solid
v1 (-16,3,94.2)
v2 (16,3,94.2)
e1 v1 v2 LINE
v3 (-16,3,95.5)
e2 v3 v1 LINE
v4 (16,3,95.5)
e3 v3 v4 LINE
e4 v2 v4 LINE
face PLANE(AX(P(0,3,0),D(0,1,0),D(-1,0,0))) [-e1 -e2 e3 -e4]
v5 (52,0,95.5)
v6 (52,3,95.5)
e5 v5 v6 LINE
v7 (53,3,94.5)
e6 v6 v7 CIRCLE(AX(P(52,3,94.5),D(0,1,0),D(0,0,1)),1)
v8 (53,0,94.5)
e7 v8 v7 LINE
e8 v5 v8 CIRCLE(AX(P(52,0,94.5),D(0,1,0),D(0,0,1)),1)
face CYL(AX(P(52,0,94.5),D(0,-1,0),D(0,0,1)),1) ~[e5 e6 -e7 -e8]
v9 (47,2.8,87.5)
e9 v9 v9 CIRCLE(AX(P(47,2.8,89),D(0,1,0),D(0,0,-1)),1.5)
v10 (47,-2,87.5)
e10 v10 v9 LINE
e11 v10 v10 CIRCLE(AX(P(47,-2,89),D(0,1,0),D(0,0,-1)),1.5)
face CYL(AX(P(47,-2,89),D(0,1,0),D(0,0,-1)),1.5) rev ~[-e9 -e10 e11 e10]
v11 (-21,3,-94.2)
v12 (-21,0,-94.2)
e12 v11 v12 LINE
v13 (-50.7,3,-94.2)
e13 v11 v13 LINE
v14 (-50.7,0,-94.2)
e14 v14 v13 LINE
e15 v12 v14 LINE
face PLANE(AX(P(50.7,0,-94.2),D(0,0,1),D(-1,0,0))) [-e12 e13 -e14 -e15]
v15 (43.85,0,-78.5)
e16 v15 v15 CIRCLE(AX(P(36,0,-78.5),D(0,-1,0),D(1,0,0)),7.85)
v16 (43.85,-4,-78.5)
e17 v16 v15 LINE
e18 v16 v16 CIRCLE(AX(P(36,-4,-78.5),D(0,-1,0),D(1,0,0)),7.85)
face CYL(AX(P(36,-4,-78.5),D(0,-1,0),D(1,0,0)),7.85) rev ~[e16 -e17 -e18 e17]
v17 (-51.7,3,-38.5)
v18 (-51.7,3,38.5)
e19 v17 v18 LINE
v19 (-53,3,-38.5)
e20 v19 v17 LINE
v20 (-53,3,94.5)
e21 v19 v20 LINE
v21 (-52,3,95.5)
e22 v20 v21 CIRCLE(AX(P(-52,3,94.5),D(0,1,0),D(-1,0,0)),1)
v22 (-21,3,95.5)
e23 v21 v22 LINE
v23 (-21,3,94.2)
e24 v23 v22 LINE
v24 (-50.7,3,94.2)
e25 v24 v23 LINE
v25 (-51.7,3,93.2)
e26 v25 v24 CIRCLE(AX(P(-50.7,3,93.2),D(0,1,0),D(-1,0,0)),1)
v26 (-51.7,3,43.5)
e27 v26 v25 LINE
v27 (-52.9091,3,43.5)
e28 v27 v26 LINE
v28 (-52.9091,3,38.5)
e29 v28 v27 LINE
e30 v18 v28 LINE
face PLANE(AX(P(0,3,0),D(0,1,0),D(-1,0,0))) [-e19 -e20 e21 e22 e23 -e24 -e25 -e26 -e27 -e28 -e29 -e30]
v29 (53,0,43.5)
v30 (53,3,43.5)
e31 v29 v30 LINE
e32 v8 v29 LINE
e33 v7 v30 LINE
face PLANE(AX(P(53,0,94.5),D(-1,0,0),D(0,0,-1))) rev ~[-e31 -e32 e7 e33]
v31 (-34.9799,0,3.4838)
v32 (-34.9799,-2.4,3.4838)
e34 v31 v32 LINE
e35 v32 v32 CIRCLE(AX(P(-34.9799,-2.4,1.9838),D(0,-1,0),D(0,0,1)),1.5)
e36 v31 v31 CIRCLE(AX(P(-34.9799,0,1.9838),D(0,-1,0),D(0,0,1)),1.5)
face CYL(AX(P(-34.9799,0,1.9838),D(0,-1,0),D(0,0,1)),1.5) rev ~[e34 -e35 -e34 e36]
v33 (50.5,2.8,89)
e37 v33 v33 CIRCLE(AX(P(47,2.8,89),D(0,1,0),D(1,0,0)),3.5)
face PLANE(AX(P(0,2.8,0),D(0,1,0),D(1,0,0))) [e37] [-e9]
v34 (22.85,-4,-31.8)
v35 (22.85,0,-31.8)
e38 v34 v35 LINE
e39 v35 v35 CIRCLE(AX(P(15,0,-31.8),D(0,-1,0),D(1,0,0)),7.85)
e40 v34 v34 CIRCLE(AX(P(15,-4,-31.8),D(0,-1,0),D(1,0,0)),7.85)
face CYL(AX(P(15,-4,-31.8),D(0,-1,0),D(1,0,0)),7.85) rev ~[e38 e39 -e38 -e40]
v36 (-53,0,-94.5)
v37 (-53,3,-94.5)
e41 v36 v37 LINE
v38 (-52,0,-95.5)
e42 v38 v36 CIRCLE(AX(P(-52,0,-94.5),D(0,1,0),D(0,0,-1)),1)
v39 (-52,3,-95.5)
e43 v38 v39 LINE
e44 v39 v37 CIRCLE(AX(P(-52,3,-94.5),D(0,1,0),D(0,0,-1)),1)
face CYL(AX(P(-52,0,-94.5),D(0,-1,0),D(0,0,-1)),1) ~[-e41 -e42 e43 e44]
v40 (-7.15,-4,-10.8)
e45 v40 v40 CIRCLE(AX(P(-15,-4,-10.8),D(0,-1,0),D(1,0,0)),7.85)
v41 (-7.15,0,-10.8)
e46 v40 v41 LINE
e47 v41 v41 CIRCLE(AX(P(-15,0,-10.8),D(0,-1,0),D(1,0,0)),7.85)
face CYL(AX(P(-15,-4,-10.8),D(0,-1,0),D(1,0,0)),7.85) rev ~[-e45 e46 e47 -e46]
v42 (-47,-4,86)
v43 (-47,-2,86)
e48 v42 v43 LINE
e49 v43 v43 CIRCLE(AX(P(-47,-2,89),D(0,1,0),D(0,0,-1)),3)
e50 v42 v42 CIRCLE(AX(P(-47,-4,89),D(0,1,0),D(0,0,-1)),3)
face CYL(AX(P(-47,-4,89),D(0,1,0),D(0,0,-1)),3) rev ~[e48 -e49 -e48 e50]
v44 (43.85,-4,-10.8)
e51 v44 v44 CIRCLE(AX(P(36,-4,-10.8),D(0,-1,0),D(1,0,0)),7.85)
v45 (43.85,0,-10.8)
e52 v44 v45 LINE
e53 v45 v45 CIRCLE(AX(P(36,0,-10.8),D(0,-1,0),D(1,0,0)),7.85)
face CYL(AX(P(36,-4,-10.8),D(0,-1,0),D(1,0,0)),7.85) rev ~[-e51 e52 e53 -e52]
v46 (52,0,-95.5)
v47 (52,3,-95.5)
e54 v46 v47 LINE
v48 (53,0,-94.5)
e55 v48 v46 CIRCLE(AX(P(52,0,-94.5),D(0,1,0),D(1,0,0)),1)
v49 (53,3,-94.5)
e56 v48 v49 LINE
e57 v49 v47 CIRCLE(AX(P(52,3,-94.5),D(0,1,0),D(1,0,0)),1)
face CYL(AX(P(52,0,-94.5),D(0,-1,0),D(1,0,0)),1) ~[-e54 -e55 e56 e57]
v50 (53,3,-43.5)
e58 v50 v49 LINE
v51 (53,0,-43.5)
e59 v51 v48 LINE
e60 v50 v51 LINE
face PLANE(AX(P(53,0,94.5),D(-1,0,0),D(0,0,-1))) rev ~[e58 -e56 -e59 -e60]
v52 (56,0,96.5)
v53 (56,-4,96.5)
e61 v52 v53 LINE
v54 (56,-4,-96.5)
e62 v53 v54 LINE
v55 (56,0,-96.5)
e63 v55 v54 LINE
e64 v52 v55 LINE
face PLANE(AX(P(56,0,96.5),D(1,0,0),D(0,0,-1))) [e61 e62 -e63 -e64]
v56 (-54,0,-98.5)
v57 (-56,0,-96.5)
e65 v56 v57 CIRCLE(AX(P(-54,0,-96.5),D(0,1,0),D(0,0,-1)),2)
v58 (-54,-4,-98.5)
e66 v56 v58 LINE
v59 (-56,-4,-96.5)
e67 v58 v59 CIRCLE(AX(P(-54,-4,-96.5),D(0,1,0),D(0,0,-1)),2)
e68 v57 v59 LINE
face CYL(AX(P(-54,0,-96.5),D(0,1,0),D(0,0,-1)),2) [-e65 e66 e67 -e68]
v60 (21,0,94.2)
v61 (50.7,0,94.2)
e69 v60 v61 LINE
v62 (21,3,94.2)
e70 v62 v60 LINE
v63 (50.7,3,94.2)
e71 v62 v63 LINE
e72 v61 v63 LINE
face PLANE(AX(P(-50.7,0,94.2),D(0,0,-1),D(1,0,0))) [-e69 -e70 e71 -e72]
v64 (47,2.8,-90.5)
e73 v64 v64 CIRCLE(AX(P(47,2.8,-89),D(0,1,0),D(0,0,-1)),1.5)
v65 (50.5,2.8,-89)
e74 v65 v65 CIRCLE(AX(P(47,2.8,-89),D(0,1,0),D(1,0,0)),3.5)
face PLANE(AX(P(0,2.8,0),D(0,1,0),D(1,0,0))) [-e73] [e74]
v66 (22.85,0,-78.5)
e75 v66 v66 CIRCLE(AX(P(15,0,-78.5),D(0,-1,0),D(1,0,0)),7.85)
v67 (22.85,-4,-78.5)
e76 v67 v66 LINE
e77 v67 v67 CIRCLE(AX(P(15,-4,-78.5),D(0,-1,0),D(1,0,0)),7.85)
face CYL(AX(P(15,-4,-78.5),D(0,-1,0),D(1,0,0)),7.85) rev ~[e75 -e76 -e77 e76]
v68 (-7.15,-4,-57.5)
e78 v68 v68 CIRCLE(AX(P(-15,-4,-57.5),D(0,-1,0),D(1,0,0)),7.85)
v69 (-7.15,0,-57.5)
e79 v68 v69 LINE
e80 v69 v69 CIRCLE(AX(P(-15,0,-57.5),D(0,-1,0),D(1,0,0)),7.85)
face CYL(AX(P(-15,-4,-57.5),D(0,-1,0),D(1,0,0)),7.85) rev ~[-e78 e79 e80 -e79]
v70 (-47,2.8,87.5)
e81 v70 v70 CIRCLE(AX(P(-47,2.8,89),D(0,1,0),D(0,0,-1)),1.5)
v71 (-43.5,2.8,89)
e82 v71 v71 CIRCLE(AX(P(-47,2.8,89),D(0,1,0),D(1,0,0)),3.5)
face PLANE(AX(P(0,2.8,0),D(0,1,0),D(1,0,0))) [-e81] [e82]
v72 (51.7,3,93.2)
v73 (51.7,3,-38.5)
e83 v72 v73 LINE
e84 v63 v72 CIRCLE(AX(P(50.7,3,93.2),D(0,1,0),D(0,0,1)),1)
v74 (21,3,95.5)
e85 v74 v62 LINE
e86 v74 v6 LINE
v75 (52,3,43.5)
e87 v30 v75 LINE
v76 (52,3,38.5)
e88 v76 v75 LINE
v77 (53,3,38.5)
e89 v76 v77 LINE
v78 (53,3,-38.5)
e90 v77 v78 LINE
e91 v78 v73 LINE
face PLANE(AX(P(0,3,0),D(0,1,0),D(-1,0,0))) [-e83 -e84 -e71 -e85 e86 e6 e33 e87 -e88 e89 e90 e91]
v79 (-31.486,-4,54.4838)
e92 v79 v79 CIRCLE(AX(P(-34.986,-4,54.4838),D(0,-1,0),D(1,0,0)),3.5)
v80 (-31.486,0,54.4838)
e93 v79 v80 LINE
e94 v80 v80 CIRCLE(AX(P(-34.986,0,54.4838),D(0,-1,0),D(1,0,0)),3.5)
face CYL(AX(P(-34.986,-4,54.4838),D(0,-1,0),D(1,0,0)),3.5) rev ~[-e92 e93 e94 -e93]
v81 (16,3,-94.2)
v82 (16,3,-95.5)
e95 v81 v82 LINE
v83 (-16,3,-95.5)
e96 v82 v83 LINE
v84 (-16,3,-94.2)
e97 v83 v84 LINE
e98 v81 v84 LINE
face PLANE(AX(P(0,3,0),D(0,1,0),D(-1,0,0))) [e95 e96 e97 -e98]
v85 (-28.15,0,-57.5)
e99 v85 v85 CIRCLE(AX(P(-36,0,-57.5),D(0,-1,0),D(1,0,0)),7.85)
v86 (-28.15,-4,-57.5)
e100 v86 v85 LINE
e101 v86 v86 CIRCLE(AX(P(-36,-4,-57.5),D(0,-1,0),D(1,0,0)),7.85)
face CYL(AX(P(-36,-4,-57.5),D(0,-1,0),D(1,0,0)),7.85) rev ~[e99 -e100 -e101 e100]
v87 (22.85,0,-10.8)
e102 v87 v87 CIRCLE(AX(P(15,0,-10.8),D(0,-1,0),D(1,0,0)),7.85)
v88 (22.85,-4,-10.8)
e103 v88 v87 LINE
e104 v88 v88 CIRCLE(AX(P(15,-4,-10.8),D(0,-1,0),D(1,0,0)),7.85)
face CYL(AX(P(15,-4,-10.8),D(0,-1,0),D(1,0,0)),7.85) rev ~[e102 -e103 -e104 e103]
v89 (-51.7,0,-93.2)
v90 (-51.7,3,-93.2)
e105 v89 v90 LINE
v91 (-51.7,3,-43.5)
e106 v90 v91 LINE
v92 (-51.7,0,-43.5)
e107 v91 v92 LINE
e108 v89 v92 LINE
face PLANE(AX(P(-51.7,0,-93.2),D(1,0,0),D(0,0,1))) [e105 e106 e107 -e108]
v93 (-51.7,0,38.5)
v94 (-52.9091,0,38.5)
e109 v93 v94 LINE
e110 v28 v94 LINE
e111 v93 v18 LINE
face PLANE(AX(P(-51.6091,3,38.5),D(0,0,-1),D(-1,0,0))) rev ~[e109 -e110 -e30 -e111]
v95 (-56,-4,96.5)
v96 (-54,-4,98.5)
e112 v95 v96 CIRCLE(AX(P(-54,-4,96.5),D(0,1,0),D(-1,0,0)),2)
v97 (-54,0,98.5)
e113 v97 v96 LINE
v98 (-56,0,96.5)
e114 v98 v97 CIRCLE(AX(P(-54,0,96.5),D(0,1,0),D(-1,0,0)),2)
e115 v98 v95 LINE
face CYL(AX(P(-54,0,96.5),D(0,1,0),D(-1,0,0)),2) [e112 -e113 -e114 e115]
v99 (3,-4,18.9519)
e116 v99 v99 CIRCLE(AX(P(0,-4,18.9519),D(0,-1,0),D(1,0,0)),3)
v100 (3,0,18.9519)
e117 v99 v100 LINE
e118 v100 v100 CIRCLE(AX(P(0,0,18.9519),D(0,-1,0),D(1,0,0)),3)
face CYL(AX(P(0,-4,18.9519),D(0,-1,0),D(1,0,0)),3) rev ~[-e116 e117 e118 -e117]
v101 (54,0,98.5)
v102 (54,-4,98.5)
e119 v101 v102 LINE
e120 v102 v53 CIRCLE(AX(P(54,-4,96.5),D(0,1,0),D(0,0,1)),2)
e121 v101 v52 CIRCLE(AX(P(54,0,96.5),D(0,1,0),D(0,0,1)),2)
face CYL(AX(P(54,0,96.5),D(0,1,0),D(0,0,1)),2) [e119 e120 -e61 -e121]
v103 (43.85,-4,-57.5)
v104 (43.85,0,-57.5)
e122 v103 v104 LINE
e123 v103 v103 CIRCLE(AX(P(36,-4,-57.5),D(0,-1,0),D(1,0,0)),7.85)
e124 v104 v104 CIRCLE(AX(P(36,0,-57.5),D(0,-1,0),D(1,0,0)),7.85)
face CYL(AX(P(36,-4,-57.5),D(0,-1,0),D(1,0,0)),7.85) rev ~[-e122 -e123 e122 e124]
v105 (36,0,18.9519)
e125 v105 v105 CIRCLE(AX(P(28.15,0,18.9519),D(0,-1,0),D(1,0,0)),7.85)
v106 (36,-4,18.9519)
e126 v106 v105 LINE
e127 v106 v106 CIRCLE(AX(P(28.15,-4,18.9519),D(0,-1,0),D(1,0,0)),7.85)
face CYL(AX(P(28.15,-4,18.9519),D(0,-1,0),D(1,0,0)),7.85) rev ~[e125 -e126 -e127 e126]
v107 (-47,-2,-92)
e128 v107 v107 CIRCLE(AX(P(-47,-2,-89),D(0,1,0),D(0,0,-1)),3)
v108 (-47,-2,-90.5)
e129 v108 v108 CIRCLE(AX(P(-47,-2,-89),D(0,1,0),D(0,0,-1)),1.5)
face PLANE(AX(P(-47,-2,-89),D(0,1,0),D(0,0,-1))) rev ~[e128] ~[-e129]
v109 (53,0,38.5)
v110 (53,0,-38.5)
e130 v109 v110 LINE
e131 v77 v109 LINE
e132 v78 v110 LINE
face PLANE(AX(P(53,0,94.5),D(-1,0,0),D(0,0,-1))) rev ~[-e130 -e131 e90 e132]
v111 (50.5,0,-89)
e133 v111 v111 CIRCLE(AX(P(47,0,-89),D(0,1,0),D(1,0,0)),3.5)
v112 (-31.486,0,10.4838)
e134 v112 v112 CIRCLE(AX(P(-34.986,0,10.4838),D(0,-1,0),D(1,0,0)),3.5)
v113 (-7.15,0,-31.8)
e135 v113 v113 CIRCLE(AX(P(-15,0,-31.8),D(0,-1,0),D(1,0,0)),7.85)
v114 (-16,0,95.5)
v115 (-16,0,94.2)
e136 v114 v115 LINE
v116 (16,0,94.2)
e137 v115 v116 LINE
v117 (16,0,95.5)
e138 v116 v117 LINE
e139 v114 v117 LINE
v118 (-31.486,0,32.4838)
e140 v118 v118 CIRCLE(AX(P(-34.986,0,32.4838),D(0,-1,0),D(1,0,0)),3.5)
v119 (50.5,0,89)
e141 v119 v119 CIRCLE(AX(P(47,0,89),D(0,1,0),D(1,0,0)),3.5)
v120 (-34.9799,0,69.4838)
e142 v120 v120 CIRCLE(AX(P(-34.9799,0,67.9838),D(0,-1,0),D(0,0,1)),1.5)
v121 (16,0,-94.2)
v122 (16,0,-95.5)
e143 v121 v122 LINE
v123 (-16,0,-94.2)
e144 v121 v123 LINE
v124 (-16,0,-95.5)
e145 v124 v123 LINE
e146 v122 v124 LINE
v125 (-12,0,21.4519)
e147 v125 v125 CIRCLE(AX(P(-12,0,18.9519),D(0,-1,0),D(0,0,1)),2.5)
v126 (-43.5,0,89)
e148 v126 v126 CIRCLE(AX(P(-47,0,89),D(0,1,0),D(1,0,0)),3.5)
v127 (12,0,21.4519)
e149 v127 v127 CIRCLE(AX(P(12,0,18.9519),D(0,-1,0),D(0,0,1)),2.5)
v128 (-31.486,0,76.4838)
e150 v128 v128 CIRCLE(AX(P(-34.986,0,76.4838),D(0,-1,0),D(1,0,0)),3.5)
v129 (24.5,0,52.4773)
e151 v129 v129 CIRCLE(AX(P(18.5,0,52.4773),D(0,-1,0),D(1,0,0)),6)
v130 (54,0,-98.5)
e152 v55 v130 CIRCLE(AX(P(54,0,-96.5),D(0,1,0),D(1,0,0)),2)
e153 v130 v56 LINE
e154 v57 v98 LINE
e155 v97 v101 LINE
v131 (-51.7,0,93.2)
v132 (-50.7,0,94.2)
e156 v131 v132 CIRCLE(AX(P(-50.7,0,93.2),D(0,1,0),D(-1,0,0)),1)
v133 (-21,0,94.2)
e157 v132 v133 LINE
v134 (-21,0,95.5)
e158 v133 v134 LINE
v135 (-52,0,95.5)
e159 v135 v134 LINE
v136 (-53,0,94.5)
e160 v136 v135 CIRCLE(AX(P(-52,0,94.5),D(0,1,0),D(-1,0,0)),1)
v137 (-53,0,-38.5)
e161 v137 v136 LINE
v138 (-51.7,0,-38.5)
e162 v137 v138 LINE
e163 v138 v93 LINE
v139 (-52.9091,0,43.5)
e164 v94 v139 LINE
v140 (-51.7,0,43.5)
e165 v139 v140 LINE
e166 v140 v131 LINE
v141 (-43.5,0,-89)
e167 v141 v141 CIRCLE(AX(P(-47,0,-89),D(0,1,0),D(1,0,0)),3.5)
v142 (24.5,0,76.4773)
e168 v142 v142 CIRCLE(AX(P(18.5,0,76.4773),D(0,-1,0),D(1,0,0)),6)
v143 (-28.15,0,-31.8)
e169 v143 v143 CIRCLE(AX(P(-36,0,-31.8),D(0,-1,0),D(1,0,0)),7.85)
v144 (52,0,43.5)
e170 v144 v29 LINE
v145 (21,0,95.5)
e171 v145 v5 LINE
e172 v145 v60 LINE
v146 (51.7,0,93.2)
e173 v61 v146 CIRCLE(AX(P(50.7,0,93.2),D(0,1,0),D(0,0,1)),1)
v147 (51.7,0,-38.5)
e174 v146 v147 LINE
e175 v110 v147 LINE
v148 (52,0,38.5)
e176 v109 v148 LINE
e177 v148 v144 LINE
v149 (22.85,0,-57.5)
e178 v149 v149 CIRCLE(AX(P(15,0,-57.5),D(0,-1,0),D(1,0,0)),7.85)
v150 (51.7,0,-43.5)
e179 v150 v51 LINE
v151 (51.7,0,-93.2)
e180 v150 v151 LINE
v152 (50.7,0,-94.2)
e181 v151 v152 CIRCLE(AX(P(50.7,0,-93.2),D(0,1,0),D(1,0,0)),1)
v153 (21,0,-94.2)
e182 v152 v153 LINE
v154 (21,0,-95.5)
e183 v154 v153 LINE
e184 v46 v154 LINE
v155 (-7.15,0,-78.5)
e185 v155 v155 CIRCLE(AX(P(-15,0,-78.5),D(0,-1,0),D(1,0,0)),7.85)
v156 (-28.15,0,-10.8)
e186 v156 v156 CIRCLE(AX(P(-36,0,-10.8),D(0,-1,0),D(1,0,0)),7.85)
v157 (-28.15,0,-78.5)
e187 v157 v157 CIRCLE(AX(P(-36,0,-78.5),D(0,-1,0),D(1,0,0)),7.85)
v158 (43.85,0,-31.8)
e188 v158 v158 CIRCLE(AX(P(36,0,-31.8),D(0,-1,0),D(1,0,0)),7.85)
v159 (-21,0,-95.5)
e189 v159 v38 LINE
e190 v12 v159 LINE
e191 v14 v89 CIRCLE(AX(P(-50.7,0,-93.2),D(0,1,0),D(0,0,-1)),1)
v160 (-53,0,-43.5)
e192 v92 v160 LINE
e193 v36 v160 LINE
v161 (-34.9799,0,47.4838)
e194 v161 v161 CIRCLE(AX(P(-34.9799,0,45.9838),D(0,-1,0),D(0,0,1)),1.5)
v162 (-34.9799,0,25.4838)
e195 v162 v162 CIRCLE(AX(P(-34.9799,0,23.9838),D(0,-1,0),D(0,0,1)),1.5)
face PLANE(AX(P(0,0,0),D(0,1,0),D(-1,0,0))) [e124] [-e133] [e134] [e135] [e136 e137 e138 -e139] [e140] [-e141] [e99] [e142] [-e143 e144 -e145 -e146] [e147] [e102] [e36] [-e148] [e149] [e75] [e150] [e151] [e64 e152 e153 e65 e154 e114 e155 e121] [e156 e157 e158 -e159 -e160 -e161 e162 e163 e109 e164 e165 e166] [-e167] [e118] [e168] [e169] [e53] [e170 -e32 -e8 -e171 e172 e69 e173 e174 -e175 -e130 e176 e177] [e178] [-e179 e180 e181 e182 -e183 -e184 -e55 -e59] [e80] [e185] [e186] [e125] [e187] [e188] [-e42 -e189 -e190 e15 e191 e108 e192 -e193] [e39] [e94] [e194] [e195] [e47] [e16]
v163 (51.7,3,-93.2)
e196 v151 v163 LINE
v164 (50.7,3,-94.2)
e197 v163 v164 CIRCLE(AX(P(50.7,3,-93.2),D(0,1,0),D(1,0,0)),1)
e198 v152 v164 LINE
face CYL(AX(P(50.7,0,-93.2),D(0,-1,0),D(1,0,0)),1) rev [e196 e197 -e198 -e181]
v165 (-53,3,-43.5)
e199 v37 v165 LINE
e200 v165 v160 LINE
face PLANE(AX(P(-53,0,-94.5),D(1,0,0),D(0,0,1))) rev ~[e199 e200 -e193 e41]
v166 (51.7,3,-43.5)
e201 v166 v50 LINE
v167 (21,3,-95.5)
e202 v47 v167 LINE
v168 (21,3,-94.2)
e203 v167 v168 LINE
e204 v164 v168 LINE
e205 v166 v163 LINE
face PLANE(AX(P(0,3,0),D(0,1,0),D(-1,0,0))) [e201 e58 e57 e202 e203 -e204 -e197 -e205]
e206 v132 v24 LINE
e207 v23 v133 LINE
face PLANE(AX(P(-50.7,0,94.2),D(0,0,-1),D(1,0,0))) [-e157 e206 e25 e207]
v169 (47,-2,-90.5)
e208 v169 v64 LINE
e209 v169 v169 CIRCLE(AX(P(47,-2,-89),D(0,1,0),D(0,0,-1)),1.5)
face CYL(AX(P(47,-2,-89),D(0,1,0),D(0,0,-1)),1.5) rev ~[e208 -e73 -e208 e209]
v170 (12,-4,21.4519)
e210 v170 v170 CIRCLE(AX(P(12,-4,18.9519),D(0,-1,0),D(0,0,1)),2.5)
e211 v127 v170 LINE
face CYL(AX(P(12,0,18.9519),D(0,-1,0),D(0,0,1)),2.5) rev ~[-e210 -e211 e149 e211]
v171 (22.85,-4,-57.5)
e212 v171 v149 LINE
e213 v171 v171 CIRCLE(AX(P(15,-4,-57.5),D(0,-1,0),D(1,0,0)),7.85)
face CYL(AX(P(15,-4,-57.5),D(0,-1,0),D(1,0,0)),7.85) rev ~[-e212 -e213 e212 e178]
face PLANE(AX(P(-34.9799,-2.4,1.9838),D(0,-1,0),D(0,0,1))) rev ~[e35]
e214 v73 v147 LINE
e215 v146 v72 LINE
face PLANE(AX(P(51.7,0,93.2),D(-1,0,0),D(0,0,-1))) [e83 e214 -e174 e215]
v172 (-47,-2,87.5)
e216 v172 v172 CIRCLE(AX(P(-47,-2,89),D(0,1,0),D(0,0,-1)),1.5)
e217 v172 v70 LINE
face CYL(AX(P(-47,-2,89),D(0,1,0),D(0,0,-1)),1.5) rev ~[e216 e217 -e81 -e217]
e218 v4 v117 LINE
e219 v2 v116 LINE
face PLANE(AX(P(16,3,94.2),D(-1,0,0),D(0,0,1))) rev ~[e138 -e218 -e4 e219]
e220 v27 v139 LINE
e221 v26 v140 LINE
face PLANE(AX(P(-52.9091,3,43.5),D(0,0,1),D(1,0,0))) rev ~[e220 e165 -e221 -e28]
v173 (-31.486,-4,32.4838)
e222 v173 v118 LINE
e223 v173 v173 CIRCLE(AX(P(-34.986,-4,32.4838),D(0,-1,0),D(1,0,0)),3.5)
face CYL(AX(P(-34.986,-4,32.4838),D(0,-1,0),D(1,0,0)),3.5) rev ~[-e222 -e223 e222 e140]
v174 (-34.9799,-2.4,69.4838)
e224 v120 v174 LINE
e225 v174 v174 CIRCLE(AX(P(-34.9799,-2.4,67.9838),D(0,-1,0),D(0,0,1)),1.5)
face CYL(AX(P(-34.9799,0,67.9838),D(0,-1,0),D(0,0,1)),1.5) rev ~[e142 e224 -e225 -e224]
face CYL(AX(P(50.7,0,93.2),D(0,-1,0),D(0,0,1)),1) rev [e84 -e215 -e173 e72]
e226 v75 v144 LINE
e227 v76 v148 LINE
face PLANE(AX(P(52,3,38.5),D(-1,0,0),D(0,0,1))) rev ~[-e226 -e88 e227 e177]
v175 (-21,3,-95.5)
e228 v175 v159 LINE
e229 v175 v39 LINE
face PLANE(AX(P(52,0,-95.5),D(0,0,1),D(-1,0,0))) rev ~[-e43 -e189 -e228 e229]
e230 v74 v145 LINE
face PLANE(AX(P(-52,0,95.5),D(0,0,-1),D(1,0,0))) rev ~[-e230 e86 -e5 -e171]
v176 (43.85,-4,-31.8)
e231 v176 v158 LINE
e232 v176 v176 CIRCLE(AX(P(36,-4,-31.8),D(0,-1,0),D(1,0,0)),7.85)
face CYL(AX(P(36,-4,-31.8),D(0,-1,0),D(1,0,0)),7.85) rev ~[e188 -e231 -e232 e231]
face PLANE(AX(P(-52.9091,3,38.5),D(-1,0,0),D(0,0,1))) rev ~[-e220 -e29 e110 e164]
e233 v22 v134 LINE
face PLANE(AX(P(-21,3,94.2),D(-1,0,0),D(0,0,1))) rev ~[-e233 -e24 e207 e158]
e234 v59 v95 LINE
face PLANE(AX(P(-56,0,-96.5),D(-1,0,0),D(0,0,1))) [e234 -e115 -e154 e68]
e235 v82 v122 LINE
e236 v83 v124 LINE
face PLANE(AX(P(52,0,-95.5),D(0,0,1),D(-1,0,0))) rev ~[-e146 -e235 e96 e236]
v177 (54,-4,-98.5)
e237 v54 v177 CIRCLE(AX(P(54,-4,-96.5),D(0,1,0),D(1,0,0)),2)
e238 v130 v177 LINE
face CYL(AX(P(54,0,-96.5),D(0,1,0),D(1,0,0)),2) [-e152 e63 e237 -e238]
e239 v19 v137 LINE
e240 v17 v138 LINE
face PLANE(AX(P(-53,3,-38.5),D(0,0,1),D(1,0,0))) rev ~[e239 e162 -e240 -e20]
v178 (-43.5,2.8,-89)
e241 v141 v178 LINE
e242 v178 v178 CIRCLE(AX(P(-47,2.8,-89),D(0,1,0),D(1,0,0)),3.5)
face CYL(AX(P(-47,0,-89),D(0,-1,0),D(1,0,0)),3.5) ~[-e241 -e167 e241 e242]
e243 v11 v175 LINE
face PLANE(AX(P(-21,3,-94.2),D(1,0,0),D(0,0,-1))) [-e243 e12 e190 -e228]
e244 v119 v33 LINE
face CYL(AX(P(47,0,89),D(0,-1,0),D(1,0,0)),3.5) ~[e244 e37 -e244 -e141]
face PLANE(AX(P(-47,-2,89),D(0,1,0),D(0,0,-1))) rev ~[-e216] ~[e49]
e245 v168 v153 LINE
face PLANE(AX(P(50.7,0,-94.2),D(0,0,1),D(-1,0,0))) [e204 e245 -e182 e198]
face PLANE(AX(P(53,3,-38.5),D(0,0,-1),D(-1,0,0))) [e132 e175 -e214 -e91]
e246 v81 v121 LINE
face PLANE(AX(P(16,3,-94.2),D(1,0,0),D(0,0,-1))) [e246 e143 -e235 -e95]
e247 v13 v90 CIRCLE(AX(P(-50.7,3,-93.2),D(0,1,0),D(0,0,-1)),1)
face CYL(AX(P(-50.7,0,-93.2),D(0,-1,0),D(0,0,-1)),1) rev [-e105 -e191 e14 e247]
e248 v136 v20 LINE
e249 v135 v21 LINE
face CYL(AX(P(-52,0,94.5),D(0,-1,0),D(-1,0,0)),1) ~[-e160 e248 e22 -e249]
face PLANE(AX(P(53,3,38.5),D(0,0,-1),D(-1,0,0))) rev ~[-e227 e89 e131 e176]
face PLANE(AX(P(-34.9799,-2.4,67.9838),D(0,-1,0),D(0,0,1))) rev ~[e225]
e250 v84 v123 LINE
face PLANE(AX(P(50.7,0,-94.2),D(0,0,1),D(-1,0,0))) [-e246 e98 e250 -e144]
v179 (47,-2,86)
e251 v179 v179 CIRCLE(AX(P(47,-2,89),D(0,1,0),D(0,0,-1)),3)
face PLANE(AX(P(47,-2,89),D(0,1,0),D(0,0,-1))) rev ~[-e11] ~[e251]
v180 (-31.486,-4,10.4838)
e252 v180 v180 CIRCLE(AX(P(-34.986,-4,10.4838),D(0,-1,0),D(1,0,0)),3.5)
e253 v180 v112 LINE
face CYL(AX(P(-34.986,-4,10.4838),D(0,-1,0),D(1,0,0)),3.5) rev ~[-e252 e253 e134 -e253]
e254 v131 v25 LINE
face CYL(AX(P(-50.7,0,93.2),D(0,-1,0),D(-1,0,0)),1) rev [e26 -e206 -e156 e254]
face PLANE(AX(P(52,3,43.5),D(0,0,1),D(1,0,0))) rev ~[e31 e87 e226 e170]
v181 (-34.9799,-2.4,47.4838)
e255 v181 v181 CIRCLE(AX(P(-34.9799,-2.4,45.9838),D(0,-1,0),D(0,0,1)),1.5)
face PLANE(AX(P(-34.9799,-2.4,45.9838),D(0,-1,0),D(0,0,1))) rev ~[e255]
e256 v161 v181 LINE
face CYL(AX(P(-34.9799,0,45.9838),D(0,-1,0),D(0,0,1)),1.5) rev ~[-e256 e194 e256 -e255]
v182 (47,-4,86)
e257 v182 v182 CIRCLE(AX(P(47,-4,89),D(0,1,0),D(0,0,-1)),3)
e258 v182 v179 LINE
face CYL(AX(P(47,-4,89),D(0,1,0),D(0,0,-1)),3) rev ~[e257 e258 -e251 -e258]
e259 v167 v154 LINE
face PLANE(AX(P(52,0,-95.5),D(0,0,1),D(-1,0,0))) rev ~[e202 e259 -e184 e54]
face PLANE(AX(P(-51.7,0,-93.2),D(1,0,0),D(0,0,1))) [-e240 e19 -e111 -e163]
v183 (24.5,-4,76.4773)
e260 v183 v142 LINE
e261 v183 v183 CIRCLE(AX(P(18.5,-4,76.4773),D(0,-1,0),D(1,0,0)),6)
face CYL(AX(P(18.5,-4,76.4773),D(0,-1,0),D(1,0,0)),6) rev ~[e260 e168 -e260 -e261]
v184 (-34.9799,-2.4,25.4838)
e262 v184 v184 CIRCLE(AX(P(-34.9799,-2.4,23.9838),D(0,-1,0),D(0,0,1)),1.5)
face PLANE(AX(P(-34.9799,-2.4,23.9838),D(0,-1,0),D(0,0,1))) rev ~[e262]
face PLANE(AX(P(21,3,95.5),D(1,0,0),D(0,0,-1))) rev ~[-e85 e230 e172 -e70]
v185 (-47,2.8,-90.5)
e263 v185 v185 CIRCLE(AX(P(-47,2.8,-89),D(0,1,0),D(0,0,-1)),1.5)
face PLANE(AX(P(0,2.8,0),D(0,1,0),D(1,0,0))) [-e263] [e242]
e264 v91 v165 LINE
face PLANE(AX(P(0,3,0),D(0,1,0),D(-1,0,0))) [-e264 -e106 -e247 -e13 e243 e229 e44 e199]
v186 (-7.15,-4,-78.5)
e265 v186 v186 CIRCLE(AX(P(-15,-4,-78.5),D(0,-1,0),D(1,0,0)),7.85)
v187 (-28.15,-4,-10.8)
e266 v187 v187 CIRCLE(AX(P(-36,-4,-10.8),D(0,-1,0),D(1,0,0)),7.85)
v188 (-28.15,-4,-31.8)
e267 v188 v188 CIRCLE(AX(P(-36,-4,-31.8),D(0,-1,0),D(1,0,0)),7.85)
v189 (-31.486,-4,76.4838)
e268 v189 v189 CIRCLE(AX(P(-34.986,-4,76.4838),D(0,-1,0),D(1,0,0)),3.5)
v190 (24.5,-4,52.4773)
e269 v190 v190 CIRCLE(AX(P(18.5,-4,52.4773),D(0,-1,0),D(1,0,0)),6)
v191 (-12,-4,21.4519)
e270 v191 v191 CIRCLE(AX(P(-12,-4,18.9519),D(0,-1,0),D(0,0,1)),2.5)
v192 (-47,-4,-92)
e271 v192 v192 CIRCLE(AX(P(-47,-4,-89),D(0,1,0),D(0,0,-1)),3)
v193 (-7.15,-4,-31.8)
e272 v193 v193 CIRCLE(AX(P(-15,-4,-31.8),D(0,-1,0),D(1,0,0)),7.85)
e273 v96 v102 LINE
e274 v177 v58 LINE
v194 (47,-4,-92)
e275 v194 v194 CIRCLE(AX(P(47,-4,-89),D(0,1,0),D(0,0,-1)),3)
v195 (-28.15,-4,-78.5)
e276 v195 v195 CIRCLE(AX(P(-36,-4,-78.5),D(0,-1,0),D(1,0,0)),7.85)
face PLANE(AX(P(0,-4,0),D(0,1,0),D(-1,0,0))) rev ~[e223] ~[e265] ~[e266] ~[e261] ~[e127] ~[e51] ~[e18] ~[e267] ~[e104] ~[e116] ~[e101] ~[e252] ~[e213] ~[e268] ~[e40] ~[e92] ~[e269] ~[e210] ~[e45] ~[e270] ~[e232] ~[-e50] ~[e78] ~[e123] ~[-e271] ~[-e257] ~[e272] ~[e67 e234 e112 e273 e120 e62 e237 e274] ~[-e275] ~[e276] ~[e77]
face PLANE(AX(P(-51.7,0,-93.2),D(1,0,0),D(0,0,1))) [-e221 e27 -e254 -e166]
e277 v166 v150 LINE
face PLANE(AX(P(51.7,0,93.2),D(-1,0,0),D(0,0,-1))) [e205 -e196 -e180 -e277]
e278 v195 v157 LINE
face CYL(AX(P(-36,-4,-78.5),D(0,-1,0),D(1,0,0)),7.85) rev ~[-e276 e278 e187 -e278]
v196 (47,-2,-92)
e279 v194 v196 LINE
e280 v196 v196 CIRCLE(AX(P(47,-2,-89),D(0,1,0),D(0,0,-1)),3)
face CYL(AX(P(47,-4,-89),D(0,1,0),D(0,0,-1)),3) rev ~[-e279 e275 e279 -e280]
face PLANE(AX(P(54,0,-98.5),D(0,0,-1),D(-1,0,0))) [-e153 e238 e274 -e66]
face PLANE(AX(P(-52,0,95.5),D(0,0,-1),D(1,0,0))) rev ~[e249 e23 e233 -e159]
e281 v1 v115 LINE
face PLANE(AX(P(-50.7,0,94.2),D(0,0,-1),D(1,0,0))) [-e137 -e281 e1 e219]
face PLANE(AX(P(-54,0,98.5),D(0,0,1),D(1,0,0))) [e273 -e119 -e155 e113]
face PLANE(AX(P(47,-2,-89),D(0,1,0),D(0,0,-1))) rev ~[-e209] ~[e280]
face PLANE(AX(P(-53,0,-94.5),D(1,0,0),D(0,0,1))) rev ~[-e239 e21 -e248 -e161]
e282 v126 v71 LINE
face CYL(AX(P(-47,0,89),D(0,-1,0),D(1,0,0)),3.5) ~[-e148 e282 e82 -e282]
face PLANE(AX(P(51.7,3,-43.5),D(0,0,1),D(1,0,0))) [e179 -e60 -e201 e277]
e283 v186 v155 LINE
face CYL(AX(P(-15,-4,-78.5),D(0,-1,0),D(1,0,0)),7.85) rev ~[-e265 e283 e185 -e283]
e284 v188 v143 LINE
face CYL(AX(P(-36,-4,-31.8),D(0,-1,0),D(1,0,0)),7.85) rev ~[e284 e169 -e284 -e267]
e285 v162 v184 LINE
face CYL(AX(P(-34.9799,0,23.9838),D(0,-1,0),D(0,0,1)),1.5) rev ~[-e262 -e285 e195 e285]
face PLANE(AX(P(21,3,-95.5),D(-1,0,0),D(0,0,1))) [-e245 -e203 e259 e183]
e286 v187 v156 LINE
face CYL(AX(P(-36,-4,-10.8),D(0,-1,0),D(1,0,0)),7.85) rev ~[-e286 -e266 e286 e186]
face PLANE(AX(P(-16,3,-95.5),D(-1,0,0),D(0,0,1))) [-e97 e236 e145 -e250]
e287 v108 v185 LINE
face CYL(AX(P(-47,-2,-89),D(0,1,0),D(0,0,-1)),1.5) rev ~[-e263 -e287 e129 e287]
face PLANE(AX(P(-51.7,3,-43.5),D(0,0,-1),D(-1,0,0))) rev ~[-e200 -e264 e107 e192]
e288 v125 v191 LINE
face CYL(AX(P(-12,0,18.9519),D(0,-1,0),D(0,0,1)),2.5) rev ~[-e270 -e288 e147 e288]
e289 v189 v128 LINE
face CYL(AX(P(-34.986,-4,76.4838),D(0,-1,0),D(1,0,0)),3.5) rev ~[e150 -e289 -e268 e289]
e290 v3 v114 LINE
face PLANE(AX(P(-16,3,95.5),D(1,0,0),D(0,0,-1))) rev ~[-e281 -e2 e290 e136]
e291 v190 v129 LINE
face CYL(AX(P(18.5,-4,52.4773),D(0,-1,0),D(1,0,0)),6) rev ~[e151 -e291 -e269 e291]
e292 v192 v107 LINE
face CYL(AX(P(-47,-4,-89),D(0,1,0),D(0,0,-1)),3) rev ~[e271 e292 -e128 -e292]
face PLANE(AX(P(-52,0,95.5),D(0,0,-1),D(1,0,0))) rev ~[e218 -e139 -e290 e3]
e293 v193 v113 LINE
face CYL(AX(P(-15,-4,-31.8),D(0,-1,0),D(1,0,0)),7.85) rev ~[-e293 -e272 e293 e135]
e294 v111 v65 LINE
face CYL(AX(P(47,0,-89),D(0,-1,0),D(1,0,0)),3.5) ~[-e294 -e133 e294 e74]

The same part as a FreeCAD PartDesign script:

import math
import FreeCAD as App
import Part
import Sketcher
from FreeCAD import Vector


def add_polygon(sketch, points):
    """Adds a closed chain of lines whose ends are joined by coincident constraints."""
    first, n = sketch.GeometryCount, len(points)
    for a, b in zip(points, points[1:] + points[:1]):
        sketch.addGeometry(Part.LineSegment(App.Vector(*a, 0), App.Vector(*b, 0)), False)
    for i in range(n):
        sketch.addConstraint(Sketcher.Constraint("Coincident", first + i, 2, first + (i + 1) % n, 1))

doc = App.newDocument("Part")
body = doc.addObject("PartDesign::Body", "Body")

sketch1 = doc.addObject("Sketcher::SketchObject", "Sketch")
body.addObject(sketch1)
sketch1.AttachmentSupport = (doc.XZ_Plane, [""])
sketch1.MapMode = "FlatFace"
sketch1.addGeometry([
    Part.ArcOfCircle(Part.Circle(Vector(-54, 96.5, 0), Vector(0, 0, 1), 2), math.radians(90), math.radians(180)),
    Part.LineSegment(Vector(-54, 98.5, 0), Vector(54, 98.5, 0)),
    Part.ArcOfCircle(Part.Circle(Vector(54, 96.5, 0), Vector(0, 0, 1), 2), math.radians(0), math.radians(90)),
    Part.LineSegment(Vector(56, 96.5, 0), Vector(56, -96.5, 0)),
    Part.ArcOfCircle(Part.Circle(Vector(54, -96.5, 0), Vector(0, 0, 1), 2), math.radians(-90), math.radians(0)),
    Part.LineSegment(Vector(54, -98.5, 0), Vector(-54, -98.5, 0)),
    Part.ArcOfCircle(Part.Circle(Vector(-54, -96.5, 0), Vector(0, 0, 1), 2), math.radians(180), math.radians(270)),
    Part.LineSegment(Vector(-56, -96.5, 0), Vector(-56, 96.5, 0)),
], False)
sketch1.addConstraint([
    Sketcher.Constraint("Tangent", 0, 1, 1, 1),
    Sketcher.Constraint("Tangent", 1, 2, 2, 2),
    Sketcher.Constraint("Tangent", 2, 1, 3, 1),
    Sketcher.Constraint("Tangent", 3, 2, 4, 2),
    Sketcher.Constraint("Tangent", 4, 1, 5, 1),
    Sketcher.Constraint("Tangent", 5, 2, 6, 2),
    Sketcher.Constraint("Tangent", 6, 1, 7, 1),
    Sketcher.Constraint("Tangent", 7, 2, 0, 2),
    Sketcher.Constraint("Horizontal", 1),
    Sketcher.Constraint("Vertical", 3),
    Sketcher.Constraint("Horizontal", 5),
    Sketcher.Constraint("Vertical", 7),
    Sketcher.Constraint("Equal", 0, 2),
    Sketcher.Constraint("Equal", 2, 4),
    Sketcher.Constraint("Equal", 4, 6),
    Sketcher.Constraint("Symmetric", 0, 3, 4, 3, -1, 1),
    Sketcher.Constraint("Radius", 0, 2.0),
    Sketcher.Constraint("DistanceX", 6, 1, 3, 2, 112.0),
    Sketcher.Constraint("DistanceY", 3, 2, 3, 1, 193.0),
])
pad1 = doc.addObject("PartDesign::Pad", "Pad")
body.addObject(pad1)
pad1.Profile = sketch1
pad1.Length = 4

sketch2 = doc.addObject("Sketcher::SketchObject", "Sketch001")
body.addObject(sketch2)
sketch2.AttachmentSupport = (doc.XZ_Plane, [""])
sketch2.MapMode = "FlatFace"
sketch2.addGeometry([
    Part.ArcOfCircle(Part.Circle(Vector(-52, 94.5, 0), Vector(0, 0, 1), 1), math.radians(90), math.radians(180)),
    Part.LineSegment(Vector(-52, 95.5, 0), Vector(52, 95.5, 0)),
    Part.ArcOfCircle(Part.Circle(Vector(52, 94.5, 0), Vector(0, 0, 1), 1), math.radians(0), math.radians(90)),
    Part.LineSegment(Vector(53, 94.5, 0), Vector(53, -94.5, 0)),
    Part.ArcOfCircle(Part.Circle(Vector(52, -94.5, 0), Vector(0, 0, 1), 1), math.radians(-90), math.radians(0)),
    Part.LineSegment(Vector(52, -95.5, 0), Vector(-52, -95.5, 0)),
    Part.ArcOfCircle(Part.Circle(Vector(-52, -94.5, 0), Vector(0, 0, 1), 1), math.radians(180), math.radians(270)),
    Part.LineSegment(Vector(-53, -94.5, 0), Vector(-53, 94.5, 0)),
    Part.LineSegment(Vector(50.7, 94.2, 0), Vector(-50.7, 94.2, 0)),
    Part.ArcOfCircle(Part.Circle(Vector(-50.7, 93.2, 0), Vector(0, 0, 1), 1), math.radians(90), math.radians(180)),
    Part.LineSegment(Vector(-51.7, 93.2, 0), Vector(-51.7, -93.2, 0)),
    Part.ArcOfCircle(Part.Circle(Vector(-50.7, -93.2, 0), Vector(0, 0, 1), 1), math.radians(180), math.radians(270)),
    Part.LineSegment(Vector(-50.7, -94.2, 0), Vector(50.7, -94.2, 0)),
    Part.ArcOfCircle(Part.Circle(Vector(50.7, -93.2, 0), Vector(0, 0, 1), 1), math.radians(-90), math.radians(0)),
    Part.LineSegment(Vector(51.7, -93.2, 0), Vector(51.7, 93.2, 0)),
    Part.ArcOfCircle(Part.Circle(Vector(50.7, 93.2, 0), Vector(0, 0, 1), 1), math.radians(0), math.radians(90)),
], False)
sketch2.addConstraint([
    Sketcher.Constraint("Tangent", 0, 1, 1, 1),
    Sketcher.Constraint("Tangent", 1, 2, 2, 2),
    Sketcher.Constraint("Tangent", 2, 1, 3, 1),
    Sketcher.Constraint("Tangent", 3, 2, 4, 2),
    Sketcher.Constraint("Tangent", 4, 1, 5, 1),
    Sketcher.Constraint("Tangent", 5, 2, 6, 2),
    Sketcher.Constraint("Tangent", 6, 1, 7, 1),
    Sketcher.Constraint("Tangent", 7, 2, 0, 2),
    Sketcher.Constraint("Tangent", 8, 2, 9, 1),
    Sketcher.Constraint("Tangent", 9, 2, 10, 1),
    Sketcher.Constraint("Tangent", 10, 2, 11, 1),
    Sketcher.Constraint("Tangent", 11, 2, 12, 1),
    Sketcher.Constraint("Tangent", 12, 2, 13, 1),
    Sketcher.Constraint("Tangent", 13, 2, 14, 1),
    Sketcher.Constraint("Tangent", 14, 2, 15, 1),
    Sketcher.Constraint("Tangent", 15, 2, 8, 1),
    Sketcher.Constraint("Horizontal", 1),
    Sketcher.Constraint("Vertical", 3),
    Sketcher.Constraint("Horizontal", 5),
    Sketcher.Constraint("Vertical", 7),
    Sketcher.Constraint("Horizontal", 8),
    Sketcher.Constraint("Vertical", 10),
    Sketcher.Constraint("Horizontal", 12),
    Sketcher.Constraint("Vertical", 14),
    Sketcher.Constraint("Equal", 0, 2),
    Sketcher.Constraint("Equal", 2, 4),
    Sketcher.Constraint("Equal", 4, 6),
    Sketcher.Constraint("Equal", 6, 9),
    Sketcher.Constraint("Equal", 9, 11),
    Sketcher.Constraint("Equal", 11, 13),
    Sketcher.Constraint("Equal", 13, 15),
    Sketcher.Constraint("Symmetric", 0, 3, 4, 3, -1, 1),
    Sketcher.Constraint("Symmetric", 9, 3, 13, 3, -1, 1),
    Sketcher.Constraint("Radius", 0, 1.0),
    Sketcher.Constraint("DistanceX", 0, 3, 9, 3, 1.3),
    Sketcher.Constraint("DistanceY", 9, 3, 0, 3, 1.3),
    Sketcher.Constraint("DistanceX", 1, 1, 1, 2, 104.0),
    Sketcher.Constraint("DistanceY", 3, 2, 3, 1, 189.0),
])
pad2 = doc.addObject("PartDesign::Pad", "Pad001")
body.addObject(pad2)
pad2.Profile = sketch2
pad2.Length = 3
pad2.Reversed = True

sketch3 = doc.addObject("Sketcher::SketchObject", "Sketch002")
body.addObject(sketch3)
sketch3.AttachmentSupport = (doc.XZ_Plane, [""])
sketch3.MapMode = "FlatFace"
sketch3.AttachmentOffset = App.Placement(Vector(0, 0, -3), App.Rotation())
add_polygon(sketch3, [(-52.9091, 38.5), (-52.9091, 43.5), (-51.6091, 43.5), (-51.6091, 38.5)])
add_polygon(sketch3, [(52, 38.5), (52, 43.5), (53.3, 43.5), (53.3, 38.5)])
add_polygon(sketch3, [(51.7, -38.5), (53, -38.5), (53, -43.5), (51.7, -43.5)])
add_polygon(sketch3, [(-53, -43.5), (-53, -38.5), (-51.7, -38.5), (-51.7, -43.5)])
sketch3.addConstraint([
    Sketcher.Constraint("Vertical", 0),
    Sketcher.Constraint("Horizontal", 1),
    Sketcher.Constraint("Vertical", 2),
    Sketcher.Constraint("Horizontal", 3),
    Sketcher.Constraint("Vertical", 4),
    Sketcher.Constraint("Horizontal", 5),
    Sketcher.Constraint("Vertical", 6),
    Sketcher.Constraint("Horizontal", 7),
    Sketcher.Constraint("Horizontal", 8),
    Sketcher.Constraint("Vertical", 9),
    Sketcher.Constraint("Horizontal", 10),
    Sketcher.Constraint("Vertical", 11),
    Sketcher.Constraint("Vertical", 12),
    Sketcher.Constraint("Horizontal", 13),
    Sketcher.Constraint("Vertical", 14),
    Sketcher.Constraint("Horizontal", 15),
    Sketcher.Constraint("Symmetric", 8, 2, 12, 2, -2),
    Sketcher.Constraint("Symmetric", 10, 2, 14, 2, -2),
    Sketcher.Constraint("Horizontal", 1, 2, 4, 2),
    Sketcher.Constraint("Horizontal", 3, 2, 6, 2),
    Sketcher.Constraint("Equal", 3, 5),
    Sketcher.Constraint("Equal", 7, 8),
    Sketcher.Constraint("Equal", 6, 9),
    Sketcher.Constraint("DistanceY", 0, 1, 0, 2, 5.0),
    Sketcher.Constraint("DistanceX", 1, 1, 1, 2, 1.3),
    Sketcher.Constraint("DistanceX", -1, 1, 4, 2, 52.0),
    Sketcher.Constraint("DistanceX", -1, 1, 8, 2, 53.0),
    Sketcher.Constraint("DistanceY", 8, 2, 6, 2, 77.0),
    Sketcher.Constraint("DistanceY", -1, 1, 0, 2, 43.5),
    Sketcher.Constraint("DistanceX", 0, 2, -1, 1, 52.909),
])
pocket1 = doc.addObject("PartDesign::Pocket", "Pocket")
body.addObject(pocket1)
pocket1.Profile = sketch3
pocket1.Length = 3
pocket1.Reversed = True

sketch4 = doc.addObject("Sketcher::SketchObject", "Sketch003")
body.addObject(sketch4)
sketch4.AttachmentSupport = (doc.XZ_Plane, [""])
sketch4.MapMode = "FlatFace"
sketch4.addGeometry([
    Part.Circle(Vector(-47, 89, 0), Vector(0, 0, 1), 3.5),
    Part.Circle(Vector(-47, -89, 0), Vector(0, 0, 1), 3.5),
    Part.Circle(Vector(47, 89, 0), Vector(0, 0, 1), 3.5),
    Part.Circle(Vector(47, -89, 0), Vector(0, 0, 1), 3.5),
], False)
sketch4.addConstraint([
    Sketcher.Constraint("Equal", 0, 1),
    Sketcher.Constraint("Equal", 1, 2),
    Sketcher.Constraint("Equal", 2, 3),
    Sketcher.Constraint("Symmetric", 1, 3, 2, 3, -1, 1),
    Sketcher.Constraint("Symmetric", 0, 3, 3, 3, -1, 1),
    Sketcher.Constraint("Symmetric", 0, 3, 2, 3, -2),
    Sketcher.Constraint("Diameter", 0, 7.0),
    Sketcher.Constraint("DistanceX", 0, 3, -1, 1, 47.0),
    Sketcher.Constraint("DistanceY", -1, 1, 0, 3, 89.0),
])
pad3 = doc.addObject("PartDesign::Pad", "Pad002")
body.addObject(pad3)
pad3.Profile = sketch4
pad3.Length = 2.8
pad3.Reversed = True

sketch5 = doc.addObject("Sketcher::SketchObject", "Sketch004")
body.addObject(sketch5)
sketch5.AttachmentSupport = (doc.XZ_Plane, [""])
sketch5.MapMode = "FlatFace"
sketch5.AttachmentOffset = App.Placement(Vector(0, 0, 4), App.Rotation())
sketch5.addGeometry([
    Part.Circle(Vector(47, 89, 0), Vector(0, 0, 1), 1.5),
    Part.Circle(Vector(47, -89, 0), Vector(0, 0, 1), 1.5),
    Part.Circle(Vector(-47, -89, 0), Vector(0, 0, 1), 1.5),
    Part.Circle(Vector(-47, 89, 0), Vector(0, 0, 1), 1.5),
], False)
sketch5.addConstraint([
    Sketcher.Constraint("Equal", 0, 1),
    Sketcher.Constraint("Equal", 1, 2),
    Sketcher.Constraint("Equal", 2, 3),
    Sketcher.Constraint("Symmetric", 0, 3, 2, 3, -1, 1),
    Sketcher.Constraint("Symmetric", 1, 3, 3, 3, -1, 1),
    Sketcher.Constraint("Symmetric", 1, 3, 2, 3, -2),
    Sketcher.Constraint("Diameter", 0, 3.0),
    Sketcher.Constraint("DistanceX", -1, 1, 0, 3, 47.0),
    Sketcher.Constraint("DistanceY", -1, 1, 0, 3, 89.0),
])
doc.recompute()
hole = doc.addObject("PartDesign::Hole", "Hole")
body.addObject(hole)
hole.Profile = sketch5
hole.ThreadType = "None"
hole.Diameter = 3
hole.DepthType = "ThroughAll"
hole.HoleCutType = "Counterbore"
hole.HoleCutDiameter = 6
hole.HoleCutDepth = 2

sketch6 = doc.addObject("Sketcher::SketchObject", "Sketch005")
body.addObject(sketch6)
sketch6.AttachmentSupport = (doc.XZ_Plane, [""])
sketch6.MapMode = "FlatFace"
sketch6.AttachmentOffset = App.Placement(Vector(0, 0, 4), App.Rotation())
sketch6.addGeometry([
    Part.Circle(Vector(36, -78.5, 0), Vector(0, 0, 1), 7.85),
    Part.Circle(Vector(18.5, 76.4773, 0), Vector(0, 0, 1), 6),
    Part.Circle(Vector(18.5, 52.4773, 0), Vector(0, 0, 1), 6),
    Part.Circle(Vector(-34.986, 76.4838, 0), Vector(0, 0, 1), 3.5),
    Part.Circle(Vector(-34.986, 54.4838, 0), Vector(0, 0, 1), 3.5),
    Part.Circle(Vector(-34.986, 32.4838, 0), Vector(0, 0, 1), 3.5),
    Part.Circle(Vector(-34.986, 10.4838, 0), Vector(0, 0, 1), 3.5),
    Part.Circle(Vector(0, 18.9519, 0), Vector(0, 0, 1), 3),
    Part.Circle(Vector(36, -57.5, 0), Vector(0, 0, 1), 7.85),
    Part.Circle(Vector(15, -78.5, 0), Vector(0, 0, 1), 7.85),
    Part.Circle(Vector(15, -57.5, 0), Vector(0, 0, 1), 7.85),
    Part.Circle(Vector(36, -31.8, 0), Vector(0, 0, 1), 7.85),
    Part.Circle(Vector(36, -10.8, 0), Vector(0, 0, 1), 7.85),
    Part.Circle(Vector(15, -31.8, 0), Vector(0, 0, 1), 7.85),
    Part.Circle(Vector(15, -10.8, 0), Vector(0, 0, 1), 7.85),
    Part.Circle(Vector(-15, -31.8, 0), Vector(0, 0, 1), 7.85),
    Part.Circle(Vector(-36, -31.8, 0), Vector(0, 0, 1), 7.85),
    Part.Circle(Vector(-36, -10.8, 0), Vector(0, 0, 1), 7.85),
    Part.Circle(Vector(-15, -10.8, 0), Vector(0, 0, 1), 7.85),
    Part.Circle(Vector(-15, -57.5, 0), Vector(0, 0, 1), 7.85),
    Part.Circle(Vector(-36, -57.5, 0), Vector(0, 0, 1), 7.85),
    Part.Circle(Vector(-36, -78.5, 0), Vector(0, 0, 1), 7.85),
    Part.Circle(Vector(-15, -78.5, 0), Vector(0, 0, 1), 7.85),
    Part.Circle(Vector(28.15, 18.9519, 0), Vector(0, 0, 1), 7.85),
], False)
sketch6.addConstraint([
    Sketcher.Constraint("Equal", 1, 2),
    Sketcher.Constraint("Equal", 3, 4),
    Sketcher.Constraint("Equal", 4, 5),
    Sketcher.Constraint("Equal", 5, 6),
    Sketcher.Constraint("Equal", 0, 8),
    Sketcher.Constraint("Equal", 8, 9),
    Sketcher.Constraint("Equal", 9, 10),
    Sketcher.Constraint("Equal", 10, 11),
    Sketcher.Constraint("Equal", 11, 12),
    Sketcher.Constraint("Equal", 12, 13),
    Sketcher.Constraint("Equal", 13, 14),
    Sketcher.Constraint("Equal", 14, 15),
    Sketcher.Constraint("Equal", 15, 16),
    Sketcher.Constraint("Equal", 16, 17),
    Sketcher.Constraint("Equal", 17, 18),
    Sketcher.Constraint("Equal", 18, 19),
    Sketcher.Constraint("Equal", 19, 20),
    Sketcher.Constraint("Equal", 20, 21),
    Sketcher.Constraint("Equal", 21, 22),
    Sketcher.Constraint("Equal", 22, 23),
    Sketcher.Constraint("Symmetric", 13, 3, 15, 3, -2),
    Sketcher.Constraint("Symmetric", 11, 3, 16, 3, -2),
    Sketcher.Constraint("Symmetric", 12, 3, 17, 3, -2),
    Sketcher.Constraint("Symmetric", 14, 3, 18, 3, -2),
    Sketcher.Constraint("Symmetric", 10, 3, 19, 3, -2),
    Sketcher.Constraint("Symmetric", 8, 3, 20, 3, -2),
    Sketcher.Constraint("Symmetric", 0, 3, 21, 3, -2),
    Sketcher.Constraint("Symmetric", 9, 3, 22, 3, -2),
    Sketcher.Constraint("PointOnObject", 7, 3, -2),
    Sketcher.Constraint("Horizontal", 0, 3, 9, 3),
    Sketcher.Constraint("Horizontal", 8, 3, 10, 3),
    Sketcher.Constraint("Horizontal", 11, 3, 13, 3),
    Sketcher.Constraint("Horizontal", 12, 3, 14, 3),
    Sketcher.Constraint("Horizontal", 7, 3, 23, 3),
    Sketcher.Constraint("Vertical", 1, 3, 2, 3),
    Sketcher.Constraint("Vertical", 3, 3, 4, 3),
    Sketcher.Constraint("Vertical", 4, 3, 5, 3),
    Sketcher.Constraint("Vertical", 5, 3, 6, 3),
    Sketcher.Constraint("Vertical", 0, 3, 8, 3),
    Sketcher.Constraint("Vertical", 9, 3, 10, 3),
    Sketcher.Constraint("Vertical", 8, 3, 11, 3),
    Sketcher.Constraint("Vertical", 11, 3, 12, 3),
    Sketcher.Constraint("Vertical", 10, 3, 13, 3),
    Sketcher.Constraint("Vertical", 13, 3, 14, 3),
    Sketcher.Constraint("Diameter", 1, 12.0),
    Sketcher.Constraint("Diameter", 3, 7.0),
    Sketcher.Constraint("Diameter", 7, 6.0),
    Sketcher.Constraint("Diameter", 0, 15.7),
    Sketcher.Constraint("DistanceY", 2, 3, 1, 3, 24.0),
    Sketcher.Constraint("DistanceY", 4, 3, 3, 3, 22.0),
    Sketcher.Constraint("DistanceY", 5, 3, 4, 3, 22.0),
    Sketcher.Constraint("DistanceY", 6, 3, 5, 3, 22.0),
    Sketcher.Constraint("DistanceY", 0, 3, 8, 3, 21.0),
    Sketcher.Constraint("DistanceX", 9, 3, 0, 3, 21.0),
    Sketcher.Constraint("DistanceY", 11, 3, 12, 3, 21.0),
    Sketcher.Constraint("DistanceX", 15, 3, 11, 3, 51.0),
    Sketcher.Constraint("DistanceY", 0, 3, -1, 1, 78.5),
    Sketcher.Constraint("DistanceX", -1, 1, 1, 3, 18.5),
    Sketcher.Constraint("DistanceY", 11, 3, -1, 1, 31.8),
    Sketcher.Constraint("DistanceX", -1, 1, 23, 3, 28.15),
    Sketcher.Constraint("DistanceX", 3, 3, -1, 1, 34.986),
    Sketcher.Constraint("DistanceY", -1, 1, 7, 3, 18.952),
    Sketcher.Constraint("DistanceY", 6, 3, 7, 3, 8.468),
    Sketcher.Constraint("DistanceY", -1, 1, 1, 3, 76.4773),
])
pocket2 = doc.addObject("PartDesign::Pocket", "Pocket001")
body.addObject(pocket2)
pocket2.Profile = sketch6
pocket2.Type = "ThroughAll"

sketch7 = doc.addObject("Sketcher::SketchObject", "Sketch006")
body.addObject(sketch7)
sketch7.AttachmentSupport = (doc.XZ_Plane, [""])
sketch7.MapMode = "FlatFace"
sketch7.addGeometry([
    Part.Circle(Vector(-34.9799, 23.9838, 0), Vector(0, 0, 1), 1.5),
    Part.Circle(Vector(-34.9799, 45.9838, 0), Vector(0, 0, 1), 1.5),
    Part.Circle(Vector(-34.9799, 67.9838, 0), Vector(0, 0, 1), 1.5),
    Part.Circle(Vector(-34.9799, 1.9838, 0), Vector(0, 0, 1), 1.5),
], False)
sketch7.addConstraint([
    Sketcher.Constraint("Equal", 0, 1),
    Sketcher.Constraint("Equal", 1, 2),
    Sketcher.Constraint("Equal", 2, 3),
    Sketcher.Constraint("Vertical", 0, 3, 1, 3),
    Sketcher.Constraint("Vertical", 1, 3, 2, 3),
    Sketcher.Constraint("Vertical", 2, 3, 3, 3),
    Sketcher.Constraint("Diameter", 0, 3.0),
    Sketcher.Constraint("DistanceY", 0, 3, 1, 3, 22.0),
    Sketcher.Constraint("DistanceY", 1, 3, 2, 3, 22.0),
    Sketcher.Constraint("DistanceY", 3, 3, 0, 3, 22.0),
    Sketcher.Constraint("DistanceX", 0, 3, -1, 1, 34.98),
    Sketcher.Constraint("DistanceY", -1, 1, 0, 3, 23.9838),
])
doc.recompute()
hole2 = doc.addObject("PartDesign::Hole", "Hole001")
body.addObject(hole2)
hole2.Profile = sketch7
hole2.ThreadType = "None"
hole2.Diameter = 3
hole2.DepthType = "Dimension"
hole2.Depth = 2.4
hole2.DrillPoint = "Flat"
hole2.Reversed = True

sketch8 = doc.addObject("Sketcher::SketchObject", "Sketch007")
body.addObject(sketch8)
sketch8.AttachmentSupport = (doc.XZ_Plane, [""])
sketch8.MapMode = "FlatFace"
sketch8.addGeometry([
    Part.Circle(Vector(12, 18.9519, 0), Vector(0, 0, 1), 2.5),
    Part.Circle(Vector(-12, 18.9519, 0), Vector(0, 0, 1), 2.5),
], False)
sketch8.addConstraint([
    Sketcher.Constraint("Equal", 0, 1),
    Sketcher.Constraint("Symmetric", 0, 3, 1, 3, -2),
    Sketcher.Constraint("Diameter", 0, 5.0),
    Sketcher.Constraint("DistanceX", -1, 1, 0, 3, 12.0),
    Sketcher.Constraint("DistanceY", -1, 1, 0, 3, 18.952),
])
doc.recompute()
hole3 = doc.addObject("PartDesign::Hole", "Hole002")
body.addObject(hole3)
hole3.Profile = sketch8
hole3.ThreadType = "None"
hole3.Diameter = 5
hole3.DepthType = "ThroughAll"
hole3.Reversed = True

sketch9 = doc.addObject("Sketcher::SketchObject", "Sketch008")
body.addObject(sketch9)
sketch9.AttachmentSupport = (doc.XZ_Plane, [""])
sketch9.MapMode = "FlatFace"
sketch9.AttachmentOffset = App.Placement(Vector(0, 0, -3), App.Rotation())
add_polygon(sketch9, [(-16, -95.5), (-21, -95.5), (-21, -94.2), (-16, -94.2)])
add_polygon(sketch9, [(21, -95.5), (16, -95.5), (16, -94.2), (21, -94.2)])
sketch9.addConstraint([
    Sketcher.Constraint("Horizontal", 0),
    Sketcher.Constraint("Vertical", 1),
    Sketcher.Constraint("Horizontal", 2),
    Sketcher.Constraint("Vertical", 3),
    Sketcher.Constraint("Horizontal", 4),
    Sketcher.Constraint("Vertical", 5),
    Sketcher.Constraint("Horizontal", 6),
    Sketcher.Constraint("Vertical", 7),
    Sketcher.Constraint("Symmetric", 3, 2, 4, 2, -2),
    Sketcher.Constraint("Symmetric", 1, 2, 6, 2, -2),
    Sketcher.Constraint("DistanceX", 0, 2, 0, 1, 5.0),
    Sketcher.Constraint("DistanceX", 3, 2, 4, 2, 32.0),
    Sketcher.Constraint("DistanceY", 1, 1, 1, 2, 1.3),
    Sketcher.Constraint("DistanceY", 0, 2, -1, 1, 95.5),
])
pocket3 = doc.addObject("PartDesign::Pocket", "Pocket002")
body.addObject(pocket3)
pocket3.Profile = sketch9
pocket3.Length = 3
pocket3.Reversed = True

sketch10 = doc.addObject("Sketcher::SketchObject", "Sketch009")
body.addObject(sketch10)
sketch10.AttachmentSupport = (doc.XZ_Plane, [""])
sketch10.MapMode = "FlatFace"
sketch10.AttachmentOffset = App.Placement(Vector(0, 0, -3), App.Rotation())
add_polygon(sketch10, [(-21, 94.2), (-21, 95.5), (-16, 95.5), (-16, 94.2)])
add_polygon(sketch10, [(16, 94.2), (16, 95.5), (21, 95.5), (21, 94.2)])
sketch10.addConstraint([
    Sketcher.Constraint("Vertical", 0),
    Sketcher.Constraint("Horizontal", 1),
    Sketcher.Constraint("Vertical", 2),
    Sketcher.Constraint("Horizontal", 3),
    Sketcher.Constraint("Vertical", 4),
    Sketcher.Constraint("Horizontal", 5),
    Sketcher.Constraint("Vertical", 6),
    Sketcher.Constraint("Horizontal", 7),
    Sketcher.Constraint("Symmetric", 1, 2, 4, 2, -2),
    Sketcher.Constraint("Symmetric", 3, 2, 6, 2, -2),
    Sketcher.Constraint("DistanceX", 1, 1, 1, 2, 5.0),
    Sketcher.Constraint("DistanceX", 1, 2, 4, 2, 32.0),
    Sketcher.Constraint("DistanceY", 0, 1, 0, 2, 1.3),
    Sketcher.Constraint("DistanceY", -1, 1, 0, 2, 95.5),
])
pocket4 = doc.addObject("PartDesign::Pocket", "Pocket003")
body.addObject(pocket4)
pocket4.Profile = sketch10
pocket4.Length = 3
pocket4.Reversed = True

doc.recompute()
